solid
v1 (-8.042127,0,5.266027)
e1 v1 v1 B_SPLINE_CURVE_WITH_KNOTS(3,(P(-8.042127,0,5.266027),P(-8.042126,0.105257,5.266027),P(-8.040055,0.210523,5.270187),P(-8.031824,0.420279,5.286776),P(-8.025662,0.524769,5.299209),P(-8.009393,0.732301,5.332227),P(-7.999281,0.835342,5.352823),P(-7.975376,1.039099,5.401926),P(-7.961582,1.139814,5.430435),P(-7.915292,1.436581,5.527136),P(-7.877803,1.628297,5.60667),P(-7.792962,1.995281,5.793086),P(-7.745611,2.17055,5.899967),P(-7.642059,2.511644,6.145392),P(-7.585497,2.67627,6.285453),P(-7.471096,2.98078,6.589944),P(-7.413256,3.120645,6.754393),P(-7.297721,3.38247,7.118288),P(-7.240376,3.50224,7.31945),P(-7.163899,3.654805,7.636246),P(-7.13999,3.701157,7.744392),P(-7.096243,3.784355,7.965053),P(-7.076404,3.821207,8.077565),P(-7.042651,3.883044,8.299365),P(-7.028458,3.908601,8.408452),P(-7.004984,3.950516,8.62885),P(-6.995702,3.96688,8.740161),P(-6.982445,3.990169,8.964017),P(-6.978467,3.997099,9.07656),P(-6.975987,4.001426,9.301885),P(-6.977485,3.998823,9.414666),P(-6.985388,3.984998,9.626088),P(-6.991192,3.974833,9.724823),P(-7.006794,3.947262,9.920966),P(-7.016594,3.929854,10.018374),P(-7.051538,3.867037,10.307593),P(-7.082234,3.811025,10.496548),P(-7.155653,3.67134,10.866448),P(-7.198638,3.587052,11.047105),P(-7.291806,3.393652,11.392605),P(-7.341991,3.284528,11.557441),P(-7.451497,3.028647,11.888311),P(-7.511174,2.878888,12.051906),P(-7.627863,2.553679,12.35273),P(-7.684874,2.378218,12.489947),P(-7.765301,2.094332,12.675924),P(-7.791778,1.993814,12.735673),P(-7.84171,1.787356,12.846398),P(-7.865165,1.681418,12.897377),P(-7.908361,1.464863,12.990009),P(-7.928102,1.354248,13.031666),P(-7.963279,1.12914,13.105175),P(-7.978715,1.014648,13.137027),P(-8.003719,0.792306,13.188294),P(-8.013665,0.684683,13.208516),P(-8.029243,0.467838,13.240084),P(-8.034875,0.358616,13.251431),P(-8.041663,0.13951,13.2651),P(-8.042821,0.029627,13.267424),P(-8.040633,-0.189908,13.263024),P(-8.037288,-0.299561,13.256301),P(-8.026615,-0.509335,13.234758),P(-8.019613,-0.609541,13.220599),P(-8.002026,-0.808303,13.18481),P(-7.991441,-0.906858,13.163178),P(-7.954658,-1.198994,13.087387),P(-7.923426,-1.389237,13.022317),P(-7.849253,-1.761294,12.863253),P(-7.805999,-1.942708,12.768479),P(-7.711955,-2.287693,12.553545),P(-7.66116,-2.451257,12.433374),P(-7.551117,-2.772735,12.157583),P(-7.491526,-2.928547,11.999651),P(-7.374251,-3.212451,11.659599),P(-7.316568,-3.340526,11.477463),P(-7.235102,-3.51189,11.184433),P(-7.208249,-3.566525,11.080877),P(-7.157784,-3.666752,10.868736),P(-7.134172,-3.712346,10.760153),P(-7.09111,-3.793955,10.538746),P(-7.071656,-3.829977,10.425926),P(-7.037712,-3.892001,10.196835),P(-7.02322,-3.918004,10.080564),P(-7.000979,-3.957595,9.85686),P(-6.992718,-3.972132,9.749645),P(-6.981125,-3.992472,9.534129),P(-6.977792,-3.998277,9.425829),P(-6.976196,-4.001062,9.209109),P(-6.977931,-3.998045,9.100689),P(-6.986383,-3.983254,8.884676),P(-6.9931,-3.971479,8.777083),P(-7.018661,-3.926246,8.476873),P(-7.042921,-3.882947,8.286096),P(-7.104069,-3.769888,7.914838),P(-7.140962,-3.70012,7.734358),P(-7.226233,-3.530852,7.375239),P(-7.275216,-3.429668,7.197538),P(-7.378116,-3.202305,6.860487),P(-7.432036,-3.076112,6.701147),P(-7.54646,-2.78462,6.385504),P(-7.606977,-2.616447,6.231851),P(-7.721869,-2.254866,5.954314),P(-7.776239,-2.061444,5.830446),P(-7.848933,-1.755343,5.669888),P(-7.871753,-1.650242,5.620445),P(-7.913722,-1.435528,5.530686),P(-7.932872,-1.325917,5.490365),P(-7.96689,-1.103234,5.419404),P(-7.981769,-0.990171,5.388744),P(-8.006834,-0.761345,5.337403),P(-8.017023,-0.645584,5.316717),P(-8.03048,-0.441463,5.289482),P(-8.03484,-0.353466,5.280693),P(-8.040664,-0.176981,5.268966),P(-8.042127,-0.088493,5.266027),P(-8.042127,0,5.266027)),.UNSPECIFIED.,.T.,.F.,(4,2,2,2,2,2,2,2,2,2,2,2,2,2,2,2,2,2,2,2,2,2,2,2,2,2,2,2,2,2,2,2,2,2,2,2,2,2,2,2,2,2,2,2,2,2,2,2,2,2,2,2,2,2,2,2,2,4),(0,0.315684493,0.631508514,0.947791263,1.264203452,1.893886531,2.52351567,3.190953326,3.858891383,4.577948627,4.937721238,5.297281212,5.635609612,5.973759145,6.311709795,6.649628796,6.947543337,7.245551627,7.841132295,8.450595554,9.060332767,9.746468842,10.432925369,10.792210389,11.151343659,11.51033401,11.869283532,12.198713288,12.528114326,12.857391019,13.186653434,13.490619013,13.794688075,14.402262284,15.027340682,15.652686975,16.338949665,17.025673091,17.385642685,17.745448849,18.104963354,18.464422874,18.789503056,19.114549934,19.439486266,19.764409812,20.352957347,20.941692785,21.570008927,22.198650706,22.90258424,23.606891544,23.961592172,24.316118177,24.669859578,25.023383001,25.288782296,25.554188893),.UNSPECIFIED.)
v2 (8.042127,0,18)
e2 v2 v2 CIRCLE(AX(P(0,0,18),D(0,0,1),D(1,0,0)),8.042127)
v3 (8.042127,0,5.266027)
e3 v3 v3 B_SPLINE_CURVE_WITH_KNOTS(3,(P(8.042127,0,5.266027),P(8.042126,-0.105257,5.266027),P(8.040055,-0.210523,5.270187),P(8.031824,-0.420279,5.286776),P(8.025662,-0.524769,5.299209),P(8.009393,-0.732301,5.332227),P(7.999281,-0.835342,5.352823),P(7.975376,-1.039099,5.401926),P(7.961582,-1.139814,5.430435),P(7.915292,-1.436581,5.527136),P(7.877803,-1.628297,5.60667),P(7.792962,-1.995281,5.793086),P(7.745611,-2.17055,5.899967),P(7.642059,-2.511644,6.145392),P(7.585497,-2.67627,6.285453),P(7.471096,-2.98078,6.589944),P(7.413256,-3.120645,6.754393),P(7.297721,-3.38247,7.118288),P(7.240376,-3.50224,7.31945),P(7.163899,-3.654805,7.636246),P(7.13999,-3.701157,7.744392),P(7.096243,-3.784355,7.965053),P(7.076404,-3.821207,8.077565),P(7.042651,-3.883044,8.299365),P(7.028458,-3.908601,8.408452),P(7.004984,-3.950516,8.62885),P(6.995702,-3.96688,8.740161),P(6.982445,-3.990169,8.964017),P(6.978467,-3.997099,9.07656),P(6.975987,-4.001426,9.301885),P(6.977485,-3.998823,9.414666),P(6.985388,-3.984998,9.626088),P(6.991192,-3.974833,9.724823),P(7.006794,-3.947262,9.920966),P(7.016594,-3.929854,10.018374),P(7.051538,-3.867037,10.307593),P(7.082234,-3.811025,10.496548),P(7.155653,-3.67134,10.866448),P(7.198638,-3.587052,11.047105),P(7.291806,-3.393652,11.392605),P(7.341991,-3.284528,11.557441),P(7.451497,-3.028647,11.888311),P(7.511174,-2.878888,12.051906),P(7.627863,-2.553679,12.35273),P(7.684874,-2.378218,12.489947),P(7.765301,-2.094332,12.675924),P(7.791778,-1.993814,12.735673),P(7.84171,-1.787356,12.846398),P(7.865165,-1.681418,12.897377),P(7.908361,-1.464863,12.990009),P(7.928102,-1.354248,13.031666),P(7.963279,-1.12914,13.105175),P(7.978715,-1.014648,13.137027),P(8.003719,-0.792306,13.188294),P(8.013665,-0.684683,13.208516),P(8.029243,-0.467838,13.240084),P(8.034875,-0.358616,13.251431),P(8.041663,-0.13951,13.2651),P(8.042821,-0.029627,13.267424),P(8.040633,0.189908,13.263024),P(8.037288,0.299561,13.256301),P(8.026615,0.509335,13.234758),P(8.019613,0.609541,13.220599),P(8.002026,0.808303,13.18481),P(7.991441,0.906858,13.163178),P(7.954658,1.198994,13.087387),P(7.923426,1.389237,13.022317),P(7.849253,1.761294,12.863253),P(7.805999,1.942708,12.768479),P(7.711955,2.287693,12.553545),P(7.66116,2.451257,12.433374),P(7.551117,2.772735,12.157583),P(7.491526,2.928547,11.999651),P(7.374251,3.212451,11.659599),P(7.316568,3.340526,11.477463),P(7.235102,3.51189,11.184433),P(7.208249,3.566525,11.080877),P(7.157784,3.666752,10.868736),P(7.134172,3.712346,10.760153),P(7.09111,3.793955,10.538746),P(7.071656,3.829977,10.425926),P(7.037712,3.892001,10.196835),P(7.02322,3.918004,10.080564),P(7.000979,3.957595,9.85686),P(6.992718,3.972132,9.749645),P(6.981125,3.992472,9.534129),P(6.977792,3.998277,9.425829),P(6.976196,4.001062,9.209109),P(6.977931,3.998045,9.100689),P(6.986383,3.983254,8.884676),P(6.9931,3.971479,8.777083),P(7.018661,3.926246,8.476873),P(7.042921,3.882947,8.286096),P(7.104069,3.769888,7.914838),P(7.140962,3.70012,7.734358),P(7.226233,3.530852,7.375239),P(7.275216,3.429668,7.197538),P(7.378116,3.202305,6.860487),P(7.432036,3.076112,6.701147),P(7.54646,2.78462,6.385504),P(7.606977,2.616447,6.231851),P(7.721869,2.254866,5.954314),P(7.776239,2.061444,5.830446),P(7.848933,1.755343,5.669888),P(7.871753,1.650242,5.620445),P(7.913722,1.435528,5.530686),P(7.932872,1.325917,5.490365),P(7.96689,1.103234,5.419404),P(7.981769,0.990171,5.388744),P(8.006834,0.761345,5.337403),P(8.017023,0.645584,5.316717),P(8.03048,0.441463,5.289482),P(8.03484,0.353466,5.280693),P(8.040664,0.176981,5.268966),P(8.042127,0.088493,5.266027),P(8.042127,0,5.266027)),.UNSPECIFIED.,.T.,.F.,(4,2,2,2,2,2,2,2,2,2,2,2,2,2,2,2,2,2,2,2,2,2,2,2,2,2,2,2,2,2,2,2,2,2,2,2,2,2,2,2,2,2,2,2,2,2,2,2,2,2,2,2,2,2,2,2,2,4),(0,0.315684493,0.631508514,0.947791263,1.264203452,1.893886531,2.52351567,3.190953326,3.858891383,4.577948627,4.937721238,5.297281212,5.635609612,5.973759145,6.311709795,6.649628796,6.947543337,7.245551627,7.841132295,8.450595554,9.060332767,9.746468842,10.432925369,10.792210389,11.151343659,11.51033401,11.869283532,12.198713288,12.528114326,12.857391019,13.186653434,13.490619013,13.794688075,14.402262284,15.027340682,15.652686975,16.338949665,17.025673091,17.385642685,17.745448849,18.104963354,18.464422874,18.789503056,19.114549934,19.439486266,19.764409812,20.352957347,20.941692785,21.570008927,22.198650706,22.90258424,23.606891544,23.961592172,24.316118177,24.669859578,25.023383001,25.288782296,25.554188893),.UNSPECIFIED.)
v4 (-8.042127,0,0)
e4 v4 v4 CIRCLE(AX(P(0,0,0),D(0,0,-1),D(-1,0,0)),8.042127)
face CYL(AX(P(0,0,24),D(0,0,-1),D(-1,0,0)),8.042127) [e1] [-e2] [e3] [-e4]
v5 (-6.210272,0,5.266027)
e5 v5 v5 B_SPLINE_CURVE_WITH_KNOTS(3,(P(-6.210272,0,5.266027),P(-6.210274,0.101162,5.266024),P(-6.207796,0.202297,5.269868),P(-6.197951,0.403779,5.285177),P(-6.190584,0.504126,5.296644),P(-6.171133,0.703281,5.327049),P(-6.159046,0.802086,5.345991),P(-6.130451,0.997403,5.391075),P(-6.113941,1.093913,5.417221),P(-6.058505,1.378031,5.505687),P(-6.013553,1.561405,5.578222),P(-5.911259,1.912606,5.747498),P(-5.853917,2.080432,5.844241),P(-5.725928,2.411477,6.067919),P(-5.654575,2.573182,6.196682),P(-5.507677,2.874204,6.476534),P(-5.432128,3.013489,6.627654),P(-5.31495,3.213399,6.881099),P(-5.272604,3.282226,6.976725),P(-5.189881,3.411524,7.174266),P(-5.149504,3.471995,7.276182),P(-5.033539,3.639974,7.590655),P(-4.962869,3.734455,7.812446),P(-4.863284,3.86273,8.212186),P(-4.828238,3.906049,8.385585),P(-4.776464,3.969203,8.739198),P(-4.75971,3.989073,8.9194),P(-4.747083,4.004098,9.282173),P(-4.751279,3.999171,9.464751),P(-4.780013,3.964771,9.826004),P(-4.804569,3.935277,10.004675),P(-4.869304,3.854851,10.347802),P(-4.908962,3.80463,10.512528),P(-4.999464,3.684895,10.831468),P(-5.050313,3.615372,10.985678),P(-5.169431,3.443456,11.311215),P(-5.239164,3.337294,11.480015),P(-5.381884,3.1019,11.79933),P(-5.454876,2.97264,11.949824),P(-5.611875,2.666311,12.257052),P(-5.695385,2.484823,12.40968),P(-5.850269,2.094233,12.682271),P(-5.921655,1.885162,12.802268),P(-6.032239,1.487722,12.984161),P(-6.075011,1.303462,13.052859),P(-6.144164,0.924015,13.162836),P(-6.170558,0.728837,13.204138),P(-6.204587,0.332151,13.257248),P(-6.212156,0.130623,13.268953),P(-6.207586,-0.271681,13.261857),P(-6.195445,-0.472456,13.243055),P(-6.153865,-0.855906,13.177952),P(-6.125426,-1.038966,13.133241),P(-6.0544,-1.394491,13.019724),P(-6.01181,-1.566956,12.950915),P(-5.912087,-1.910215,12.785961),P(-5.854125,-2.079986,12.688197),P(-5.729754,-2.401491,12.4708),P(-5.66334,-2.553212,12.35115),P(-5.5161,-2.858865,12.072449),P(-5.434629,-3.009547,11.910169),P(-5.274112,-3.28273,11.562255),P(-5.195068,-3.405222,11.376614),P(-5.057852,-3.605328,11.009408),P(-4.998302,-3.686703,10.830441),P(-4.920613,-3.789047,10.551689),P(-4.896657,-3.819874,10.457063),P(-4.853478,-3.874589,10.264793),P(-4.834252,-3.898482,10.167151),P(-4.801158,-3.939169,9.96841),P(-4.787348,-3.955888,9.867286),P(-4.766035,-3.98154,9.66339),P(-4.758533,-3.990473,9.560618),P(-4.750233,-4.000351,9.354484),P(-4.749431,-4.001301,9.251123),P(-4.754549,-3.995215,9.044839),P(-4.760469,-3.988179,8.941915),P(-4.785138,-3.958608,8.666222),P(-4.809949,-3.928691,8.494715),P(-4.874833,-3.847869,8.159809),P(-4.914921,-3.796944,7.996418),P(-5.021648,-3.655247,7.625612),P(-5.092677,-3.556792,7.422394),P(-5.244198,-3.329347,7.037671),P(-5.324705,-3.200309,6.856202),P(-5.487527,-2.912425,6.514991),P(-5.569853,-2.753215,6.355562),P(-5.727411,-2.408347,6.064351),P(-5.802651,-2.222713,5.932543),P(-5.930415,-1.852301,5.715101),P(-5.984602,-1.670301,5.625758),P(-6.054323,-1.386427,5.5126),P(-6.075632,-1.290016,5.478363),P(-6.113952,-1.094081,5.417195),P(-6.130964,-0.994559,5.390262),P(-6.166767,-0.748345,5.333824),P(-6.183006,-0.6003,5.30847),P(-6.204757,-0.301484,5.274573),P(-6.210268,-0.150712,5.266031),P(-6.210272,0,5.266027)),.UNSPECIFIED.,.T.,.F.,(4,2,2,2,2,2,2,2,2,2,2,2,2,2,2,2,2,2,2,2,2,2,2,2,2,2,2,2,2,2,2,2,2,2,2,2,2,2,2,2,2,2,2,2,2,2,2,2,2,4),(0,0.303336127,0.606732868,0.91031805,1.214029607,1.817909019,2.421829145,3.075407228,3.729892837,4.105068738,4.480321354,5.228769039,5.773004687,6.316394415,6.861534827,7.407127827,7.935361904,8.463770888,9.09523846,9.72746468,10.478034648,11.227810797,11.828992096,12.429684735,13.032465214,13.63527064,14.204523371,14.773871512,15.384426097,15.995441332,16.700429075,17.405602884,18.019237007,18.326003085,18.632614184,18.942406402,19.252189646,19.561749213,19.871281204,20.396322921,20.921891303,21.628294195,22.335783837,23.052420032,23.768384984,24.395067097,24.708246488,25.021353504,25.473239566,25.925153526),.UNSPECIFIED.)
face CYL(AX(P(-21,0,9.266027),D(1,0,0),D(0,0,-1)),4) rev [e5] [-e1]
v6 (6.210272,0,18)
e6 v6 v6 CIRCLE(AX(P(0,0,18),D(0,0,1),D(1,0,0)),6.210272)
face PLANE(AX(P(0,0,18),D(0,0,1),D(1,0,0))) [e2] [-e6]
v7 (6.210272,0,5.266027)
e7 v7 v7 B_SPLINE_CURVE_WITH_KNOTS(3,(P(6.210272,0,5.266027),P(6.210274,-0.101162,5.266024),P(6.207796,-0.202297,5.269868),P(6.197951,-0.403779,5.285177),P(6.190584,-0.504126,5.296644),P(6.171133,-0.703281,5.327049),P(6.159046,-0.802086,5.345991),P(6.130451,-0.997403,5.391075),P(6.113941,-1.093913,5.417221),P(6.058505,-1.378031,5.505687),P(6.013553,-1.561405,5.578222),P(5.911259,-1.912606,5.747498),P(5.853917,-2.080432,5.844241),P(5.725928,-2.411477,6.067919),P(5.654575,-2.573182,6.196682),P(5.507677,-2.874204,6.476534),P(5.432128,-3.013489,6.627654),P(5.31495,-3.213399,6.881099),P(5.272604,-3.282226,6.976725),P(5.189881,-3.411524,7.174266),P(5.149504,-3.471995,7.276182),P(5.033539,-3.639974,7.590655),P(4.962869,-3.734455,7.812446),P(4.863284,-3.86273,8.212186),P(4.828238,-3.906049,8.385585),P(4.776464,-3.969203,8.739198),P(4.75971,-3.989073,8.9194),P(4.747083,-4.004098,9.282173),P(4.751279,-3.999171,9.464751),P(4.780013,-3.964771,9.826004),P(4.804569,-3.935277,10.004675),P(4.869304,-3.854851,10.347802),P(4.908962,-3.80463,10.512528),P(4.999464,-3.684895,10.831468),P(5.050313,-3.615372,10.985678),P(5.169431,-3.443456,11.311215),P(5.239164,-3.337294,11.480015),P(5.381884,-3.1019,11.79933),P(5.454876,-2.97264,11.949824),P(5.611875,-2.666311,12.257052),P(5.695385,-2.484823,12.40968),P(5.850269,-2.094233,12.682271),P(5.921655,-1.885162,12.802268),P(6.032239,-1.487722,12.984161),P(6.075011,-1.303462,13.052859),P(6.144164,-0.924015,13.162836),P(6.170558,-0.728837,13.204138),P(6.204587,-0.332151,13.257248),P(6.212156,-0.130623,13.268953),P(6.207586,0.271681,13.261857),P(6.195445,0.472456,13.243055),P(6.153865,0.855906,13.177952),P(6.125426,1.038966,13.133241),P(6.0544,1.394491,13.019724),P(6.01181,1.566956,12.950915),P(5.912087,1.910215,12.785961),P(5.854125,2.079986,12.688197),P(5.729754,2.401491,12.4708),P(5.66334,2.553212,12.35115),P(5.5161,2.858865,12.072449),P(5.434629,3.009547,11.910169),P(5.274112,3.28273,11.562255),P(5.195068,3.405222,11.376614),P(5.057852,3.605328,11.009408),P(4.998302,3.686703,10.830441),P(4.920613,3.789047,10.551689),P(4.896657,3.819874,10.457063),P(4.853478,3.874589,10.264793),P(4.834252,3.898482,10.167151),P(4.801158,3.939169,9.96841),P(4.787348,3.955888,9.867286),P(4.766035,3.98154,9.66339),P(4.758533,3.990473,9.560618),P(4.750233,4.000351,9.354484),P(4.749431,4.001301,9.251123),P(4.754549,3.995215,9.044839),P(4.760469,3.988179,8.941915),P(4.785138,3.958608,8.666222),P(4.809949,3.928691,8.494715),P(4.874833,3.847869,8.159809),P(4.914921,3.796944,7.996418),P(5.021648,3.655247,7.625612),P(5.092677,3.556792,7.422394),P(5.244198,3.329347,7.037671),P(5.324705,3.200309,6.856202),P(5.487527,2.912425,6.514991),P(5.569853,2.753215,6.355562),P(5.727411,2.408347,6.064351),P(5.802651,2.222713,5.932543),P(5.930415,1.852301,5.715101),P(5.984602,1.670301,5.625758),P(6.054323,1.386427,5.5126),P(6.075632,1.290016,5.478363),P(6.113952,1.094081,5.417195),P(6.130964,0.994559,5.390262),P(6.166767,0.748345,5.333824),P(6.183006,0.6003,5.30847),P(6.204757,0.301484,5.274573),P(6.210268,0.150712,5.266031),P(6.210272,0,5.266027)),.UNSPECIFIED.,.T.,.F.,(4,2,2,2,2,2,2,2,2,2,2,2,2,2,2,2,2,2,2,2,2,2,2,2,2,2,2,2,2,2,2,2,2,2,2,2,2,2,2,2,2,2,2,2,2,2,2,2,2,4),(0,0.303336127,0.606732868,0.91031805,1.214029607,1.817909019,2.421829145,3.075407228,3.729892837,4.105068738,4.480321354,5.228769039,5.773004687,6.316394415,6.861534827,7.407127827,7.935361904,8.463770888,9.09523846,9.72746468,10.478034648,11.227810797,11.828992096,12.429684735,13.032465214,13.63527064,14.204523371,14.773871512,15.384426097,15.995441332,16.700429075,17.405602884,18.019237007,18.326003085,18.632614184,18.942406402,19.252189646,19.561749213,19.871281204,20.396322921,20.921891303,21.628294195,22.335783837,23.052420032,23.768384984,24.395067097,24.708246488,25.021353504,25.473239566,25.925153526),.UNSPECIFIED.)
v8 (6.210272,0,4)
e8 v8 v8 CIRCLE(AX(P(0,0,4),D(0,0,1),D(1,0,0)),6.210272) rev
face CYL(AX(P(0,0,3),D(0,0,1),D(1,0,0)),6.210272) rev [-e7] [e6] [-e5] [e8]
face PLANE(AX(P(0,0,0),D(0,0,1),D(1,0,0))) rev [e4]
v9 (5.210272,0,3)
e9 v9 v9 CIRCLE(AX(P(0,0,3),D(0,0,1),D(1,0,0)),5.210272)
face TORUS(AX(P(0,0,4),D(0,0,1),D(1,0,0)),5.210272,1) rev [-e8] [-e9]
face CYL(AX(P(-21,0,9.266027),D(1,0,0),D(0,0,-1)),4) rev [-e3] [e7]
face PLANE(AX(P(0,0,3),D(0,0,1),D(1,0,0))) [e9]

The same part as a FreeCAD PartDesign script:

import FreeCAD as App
import Part
import Sketcher
Q = App.Units.Quantity


def edges_at(feature, points):
    """Names of the edges that pass closest to the given points."""
    edges = feature.Shape.Edges
    near = lambda p: min(range(len(edges)), key=lambda i: edges[i].distToShape(Part.Vertex(*p))[0])
    return sorted({f"Edge{near(p) + 1}" for p in points})

doc = App.newDocument("Part")
params = doc.addObject("Spreadsheet::Sheet", "Params")
for row, (alias, value) in enumerate([
    ("sketch1_diameter", "20 mm"),
    ("pad1_length", "18 mm"),
    ("sketch2_diameter", "8 mm"),
    ("pocket2_length", "24 mm"),
    ("pocket3_length", "15 mm"),
    ("fillet_radius", "1 mm"),
], start=1):
    params.set(f"A{row}", alias)
    params.set(f"B{row}", "=" + value)
    params.setAlias(f"B{row}", alias)

body = doc.addObject("PartDesign::Body", "Body")

sketch1 = body.newObject("Sketcher::SketchObject", "Sketch")
sketch1.AttachmentSupport = (doc.getObject("XY_Plane"), [""])
sketch1.MapMode = "FlatFace"
sketch1.addGeometry(Part.Circle(App.Vector(0, 0, 0), App.Vector(0, 0, 1), 10), False)
sketch1.addConstraint([
    Sketcher.Constraint("Coincident", 0, 3, -1, 1),
    Sketcher.Constraint("Diameter", 0, Q("20 mm")),
])
sketch1.setExpression("Constraints[1]", "Params.sketch1_diameter")
pad1 = body.newObject("PartDesign::Pad", "Pad")
pad1.Profile = sketch1
pad1.setExpression("Length", "Params.pad1_length")

sketch2 = body.newObject("Sketcher::SketchObject", "Sketch001")
sketch2.AttachmentSupport = (doc.getObject("YZ_Plane"), [""])
sketch2.MapMode = "FlatFace"
sketch2.addGeometry(Part.Circle(App.Vector(0, 9.3, 0), App.Vector(0, 0, 1), 4), False)
sketch2.addConstraint([
    Sketcher.Constraint("PointOnObject", 0, 3, -2),
    Sketcher.Constraint("Diameter", 0, Q("8 mm")),
    Sketcher.Constraint("DistanceY", -1, 1, 0, 3, Q("9.266027 mm")),
])
sketch2.setExpression("Constraints[1]", "Params.sketch2_diameter")
pocket1 = body.newObject("PartDesign::Pocket", "Pocket")
pocket1.Profile = sketch2
pocket1.Type = "ThroughAll"
pocket1.Midplane = True

sketch3 = body.newObject("Sketcher::SketchObject", "Sketch002")
sketch3.AttachmentSupport = (doc.getObject("XY_Plane"), [""])
sketch3.MapMode = "FlatFace"
sketch3.addGeometry([
    Part.LineSegment(App.Vector(14, 14, 0), App.Vector(14, -14, 0)),
    Part.LineSegment(App.Vector(14, -14, 0), App.Vector(-14, -14, 0)),
    Part.LineSegment(App.Vector(-14, -14, 0), App.Vector(-14, 14, 0)),
    Part.LineSegment(App.Vector(-14, 14, 0), App.Vector(14, 14, 0)),
    Part.Circle(App.Vector(0, 0, 0), App.Vector(0, 0, 1), 8),
], False)
sketch3.addConstraint([
    Sketcher.Constraint("Coincident", 0, 2, 1, 1),
    Sketcher.Constraint("Coincident", 1, 2, 2, 1),
    Sketcher.Constraint("Coincident", 2, 2, 3, 1),
    Sketcher.Constraint("Coincident", 3, 2, 0, 1),
    Sketcher.Constraint("Vertical", 0),
    Sketcher.Constraint("Horizontal", 1),
    Sketcher.Constraint("Vertical", 2),
    Sketcher.Constraint("Horizontal", 3),
    Sketcher.Constraint("Coincident", 4, 3, -1, 1),
    Sketcher.Constraint("Symmetric", 0, 2, 2, 2, -1, 1),
    Sketcher.Constraint("Equal", 3, 0),
    Sketcher.Constraint("DistanceX", 1, 2, 1, 1, Q("28.706 mm")),
    Sketcher.Constraint("Diameter", 4, Q("16.084253 mm")),
])
pocket2 = body.newObject("PartDesign::Pocket", "Pocket001")
pocket2.Profile = sketch3
pocket2.setExpression("Length", "Params.pocket2_length")
pocket2.Reversed = True

sketch4 = body.newObject("Sketcher::SketchObject", "Sketch003")
sketch4.AttachmentSupport = (doc.getObject("XY_Plane"), [""])
sketch4.MapMode = "FlatFace"
sketch4.AttachmentOffset = App.Placement(App.Vector(0, 0, 18), App.Rotation())
sketch4.addGeometry(Part.Circle(App.Vector(0, 0, 0), App.Vector(0, 0, 1), 6), False)
sketch4.addConstraint([
    Sketcher.Constraint("Coincident", 0, 3, -1, 1),
    Sketcher.Constraint("Diameter", 0, Q("12.420543 mm")),
])
pocket3 = body.newObject("PartDesign::Pocket", "Pocket002")
pocket3.Profile = sketch4
pocket3.setExpression("Length", "Params.pocket3_length")
doc.recompute()

fillet = body.newObject("PartDesign::Fillet", "Fillet")
fillet.Base = (pocket3, edges_at(pocket3, [(-6.21, 0, 3)]))
fillet.setExpression("Radius", "Params.fillet_radius")

doc.recompute()
